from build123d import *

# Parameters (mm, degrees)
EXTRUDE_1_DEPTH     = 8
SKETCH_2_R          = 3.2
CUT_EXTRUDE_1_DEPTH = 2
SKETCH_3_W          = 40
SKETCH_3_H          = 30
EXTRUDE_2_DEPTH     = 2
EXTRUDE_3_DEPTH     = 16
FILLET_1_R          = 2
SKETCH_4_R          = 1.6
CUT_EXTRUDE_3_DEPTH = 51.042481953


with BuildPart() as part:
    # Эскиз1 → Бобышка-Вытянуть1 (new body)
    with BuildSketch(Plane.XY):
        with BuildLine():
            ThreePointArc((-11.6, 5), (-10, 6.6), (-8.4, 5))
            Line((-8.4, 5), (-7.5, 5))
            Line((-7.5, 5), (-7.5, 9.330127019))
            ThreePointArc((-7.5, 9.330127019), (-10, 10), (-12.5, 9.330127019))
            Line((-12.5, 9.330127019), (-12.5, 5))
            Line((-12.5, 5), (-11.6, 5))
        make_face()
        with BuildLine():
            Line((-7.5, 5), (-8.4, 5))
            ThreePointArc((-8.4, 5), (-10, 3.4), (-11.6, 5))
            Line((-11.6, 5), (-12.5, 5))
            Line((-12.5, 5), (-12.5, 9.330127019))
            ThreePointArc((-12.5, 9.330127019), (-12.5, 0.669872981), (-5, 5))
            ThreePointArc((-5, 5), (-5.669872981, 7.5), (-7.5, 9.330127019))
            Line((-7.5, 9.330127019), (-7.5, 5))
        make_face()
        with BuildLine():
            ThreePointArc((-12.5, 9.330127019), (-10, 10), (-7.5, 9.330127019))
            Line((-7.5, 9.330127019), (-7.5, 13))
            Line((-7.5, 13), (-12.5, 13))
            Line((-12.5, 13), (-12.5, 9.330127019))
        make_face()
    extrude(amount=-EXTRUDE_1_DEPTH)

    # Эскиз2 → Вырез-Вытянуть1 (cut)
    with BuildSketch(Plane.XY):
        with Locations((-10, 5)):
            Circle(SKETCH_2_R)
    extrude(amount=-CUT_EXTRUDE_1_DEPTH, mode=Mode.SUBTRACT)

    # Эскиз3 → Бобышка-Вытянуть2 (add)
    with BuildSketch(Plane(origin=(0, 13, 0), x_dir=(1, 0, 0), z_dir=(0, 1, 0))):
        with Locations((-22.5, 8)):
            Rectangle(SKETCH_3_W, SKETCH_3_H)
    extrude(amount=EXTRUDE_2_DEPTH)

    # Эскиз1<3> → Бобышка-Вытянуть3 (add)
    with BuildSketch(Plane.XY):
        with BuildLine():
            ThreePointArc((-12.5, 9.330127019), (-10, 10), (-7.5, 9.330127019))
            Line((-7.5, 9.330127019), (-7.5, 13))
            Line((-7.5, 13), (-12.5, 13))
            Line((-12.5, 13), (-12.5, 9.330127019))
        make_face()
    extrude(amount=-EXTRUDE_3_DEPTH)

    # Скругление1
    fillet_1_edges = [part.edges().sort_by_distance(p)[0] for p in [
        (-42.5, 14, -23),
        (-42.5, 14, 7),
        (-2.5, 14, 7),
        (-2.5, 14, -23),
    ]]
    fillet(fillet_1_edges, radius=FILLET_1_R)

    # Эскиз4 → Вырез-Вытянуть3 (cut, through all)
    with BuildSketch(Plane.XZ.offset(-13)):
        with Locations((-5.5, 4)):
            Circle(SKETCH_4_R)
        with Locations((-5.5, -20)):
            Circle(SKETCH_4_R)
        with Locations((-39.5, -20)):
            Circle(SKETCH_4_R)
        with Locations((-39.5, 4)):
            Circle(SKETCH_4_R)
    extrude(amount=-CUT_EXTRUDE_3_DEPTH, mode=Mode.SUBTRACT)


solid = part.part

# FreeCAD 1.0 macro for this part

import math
import FreeCAD as App
import Part
import Sketcher
from FreeCAD import Vector


def edges_at(feature, points):
    """Names of the edges that pass closest to the given points."""
    edges = feature.Shape.Edges
    near = lambda p: min(range(len(edges)), key=lambda i: edges[i].distToShape(Part.Vertex(*p))[0])
    return sorted({f"Edge{near(p) + 1}" for p in points})

doc = App.newDocument("Part")
body = doc.addObject("PartDesign::Body", "Body")

sketch1 = body.newObject("Sketcher::SketchObject", "Sketch")
sketch1.AttachmentSupport = (doc.getObject("XY_Plane"), [""])
sketch1.MapMode = "FlatFace"
sketch1.addGeometry(Part.ArcOfCircle(Part.Circle(Vector(-10, 5, 0), Vector(0, 0, 1), 5), math.radians(120), math.radians(360)), False)
sketch1.addGeometry(Part.ArcOfCircle(Part.Circle(Vector(-10, 5, 0), Vector(0, 0, 1), 5), math.radians(0), math.radians(60)), False)
sketch1.addGeometry(Part.LineSegment(Vector(-7.5, 9.3, 0), Vector(-7.5, 13, 0)), False)
sketch1.addGeometry(Part.LineSegment(Vector(-7.5, 13, 0), Vector(-12.5, 13, 0)), False)
sketch1.addGeometry(Part.LineSegment(Vector(-12.5, 13, 0), Vector(-12.5, 9.3, 0)), False)
sketch1.addGeometry(Part.Circle(Vector(-10, 5, 0), Vector(0, 0, 1), 1.6), False)
sketch1.addConstraint(Sketcher.Constraint("Tangent", 0, 2, 1, 1))
sketch1.addConstraint(Sketcher.Constraint("Coincident", 1, 2, 2, 1))
sketch1.addConstraint(Sketcher.Constraint("Coincident", 2, 2, 3, 1))
sketch1.addConstraint(Sketcher.Constraint("Coincident", 3, 2, 4, 1))
sketch1.addConstraint(Sketcher.Constraint("Coincident", 4, 2, 0, 1))
sketch1.addConstraint(Sketcher.Constraint("Vertical", 2))
sketch1.addConstraint(Sketcher.Constraint("Horizontal", 3))
sketch1.addConstraint(Sketcher.Constraint("Vertical", 4))
sketch1.addConstraint(Sketcher.Constraint("Coincident", 5, 3, 0, 3))
sketch1.addConstraint(Sketcher.Constraint("Equal", 0, 1))
sketch1.addConstraint(Sketcher.Constraint("Horizontal", 5, 3, 0, 2))
sketch1.addConstraint(Sketcher.Constraint("Horizontal", 1, 2, 4, 2))
sketch1.addConstraint(Sketcher.Constraint("Radius", 0, 5.0))
sketch1.addConstraint(Sketcher.Constraint("Diameter", 5, 3.2))
sketch1.addConstraint(Sketcher.Constraint("DistanceX", 3, 2, 3, 1, 5.0))
sketch1.addConstraint(Sketcher.Constraint("DistanceX", 0, 3, -1, 1, 10.0))
sketch1.addConstraint(Sketcher.Constraint("DistanceY", -1, 1, 0, 3, 5.0))
sketch1.addConstraint(Sketcher.Constraint("DistanceY", -1, 1, 2, 2, 13.0))
pad1 = body.newObject("PartDesign::Pad", "Pad")
pad1.Profile = sketch1
pad1.Length = 8
pad1.Reversed = True

sketch2 = body.newObject("Sketcher::SketchObject", "Sketch001")
sketch2.AttachmentSupport = (doc.getObject("XY_Plane"), [""])
sketch2.MapMode = "FlatFace"
sketch2.addGeometry(Part.Circle(Vector(-10, 5, 0), Vector(0, 0, 1), 3.2), False)
sketch2.addConstraint(Sketcher.Constraint("Diameter", 0, 6.4))
sketch2.addConstraint(Sketcher.Constraint("DistanceX", 0, 3, -1, 1, 10.0))
sketch2.addConstraint(Sketcher.Constraint("DistanceY", -1, 1, 0, 3, 5.0))
pocket1 = body.newObject("PartDesign::Pocket", "Pocket")
pocket1.Profile = sketch2
pocket1.Length = 2

sketch3 = body.newObject("Sketcher::SketchObject", "Sketch002")
sketch3.AttachmentSupport = (doc.getObject("XZ_Plane"), [""])
sketch3.MapMode = "FlatFace"
sketch3.AttachmentOffset = App.Placement(Vector(0, 0, -13), App.Rotation())
sketch3.addGeometry(Part.LineSegment(Vector(-42, -23, 0), Vector(-42, 7, 0)), False)
sketch3.addGeometry(Part.LineSegment(Vector(-42, 7, 0), Vector(-2, 7, 0)), False)
sketch3.addGeometry(Part.LineSegment(Vector(-2, 7, 0), Vector(-2, -23, 0)), False)
sketch3.addGeometry(Part.LineSegment(Vector(-2, -23, 0), Vector(-42, -23, 0)), False)
sketch3.addConstraint(Sketcher.Constraint("Coincident", 0, 2, 1, 1))
sketch3.addConstraint(Sketcher.Constraint("Coincident", 1, 2, 2, 1))
sketch3.addConstraint(Sketcher.Constraint("Coincident", 2, 2, 3, 1))
sketch3.addConstraint(Sketcher.Constraint("Coincident", 3, 2, 0, 1))
sketch3.addConstraint(Sketcher.Constraint("Vertical", 0))
sketch3.addConstraint(Sketcher.Constraint("Horizontal", 1))
sketch3.addConstraint(Sketcher.Constraint("Vertical", 2))
sketch3.addConstraint(Sketcher.Constraint("Horizontal", 3))
sketch3.addConstraint(Sketcher.Constraint("DistanceX", 1, 1, 1, 2, 40.0))
sketch3.addConstraint(Sketcher.Constraint("DistanceY", 0, 1, 0, 2, 30.0))
sketch3.addConstraint(Sketcher.Constraint("DistanceY", -1, 1, 0, 2, 7.0))
sketch3.addConstraint(Sketcher.Constraint("DistanceX", 0, 2, -1, 1, 42.5))
pad2 = body.newObject("PartDesign::Pad", "Pad001")
pad2.Profile = sketch3
pad2.Length = 2
pad2.Reversed = True

sketch4 = body.newObject("Sketcher::SketchObject", "Sketch003")
sketch4.AttachmentSupport = (doc.getObject("XY_Plane"), [""])
sketch4.MapMode = "FlatFace"
sketch4.addGeometry(Part.ArcOfCircle(Part.Circle(Vector(-10, 5, 0), Vector(0, 0, 1), 5), math.radians(60), math.radians(120)), False)
sketch4.addGeometry(Part.LineSegment(Vector(-7.5, 9.3, 0), Vector(-7.5, 13, 0)), False)
sketch4.addGeometry(Part.LineSegment(Vector(-7.5, 13, 0), Vector(-12.5, 13, 0)), False)
sketch4.addGeometry(Part.LineSegment(Vector(-12.5, 13, 0), Vector(-12.5, 9.3, 0)), False)
sketch4.addConstraint(Sketcher.Constraint("Coincident", 0, 1, 1, 1))
sketch4.addConstraint(Sketcher.Constraint("Coincident", 1, 2, 2, 1))
sketch4.addConstraint(Sketcher.Constraint("Coincident", 2, 2, 3, 1))
sketch4.addConstraint(Sketcher.Constraint("Coincident", 3, 2, 0, 2))
sketch4.addConstraint(Sketcher.Constraint("Vertical", 1))
sketch4.addConstraint(Sketcher.Constraint("Horizontal", 2))
sketch4.addConstraint(Sketcher.Constraint("Vertical", 3))
sketch4.addConstraint(Sketcher.Constraint("Horizontal", 0, 1, 3, 2))
sketch4.addConstraint(Sketcher.Constraint("Radius", 0, 5.0))
sketch4.addConstraint(Sketcher.Constraint("DistanceX", 2, 2, 2, 1, 5.0))
sketch4.addConstraint(Sketcher.Constraint("DistanceX", 0, 3, -1, 1, 10.0))
sketch4.addConstraint(Sketcher.Constraint("DistanceY", -1, 1, 0, 3, 5.0))
sketch4.addConstraint(Sketcher.Constraint("DistanceY", -1, 1, 1, 2, 13.0))
pad3 = body.newObject("PartDesign::Pad", "Pad002")
pad3.Profile = sketch4
pad3.Length = 16
pad3.Reversed = True
doc.recompute()

fillet = body.newObject("PartDesign::Fillet", "Fillet")
fillet.Base = (pad3, edges_at(pad3, [
    (-42.5, 14, -23),
    (-42.5, 14, 7),
    (-2.5, 14, 7),
    (-2.5, 14, -23),
]))
fillet.Radius = 2

sketch5 = body.newObject("Sketcher::SketchObject", "Sketch004")
sketch5.AttachmentSupport = (doc.getObject("XZ_Plane"), [""])
sketch5.MapMode = "FlatFace"
sketch5.AttachmentOffset = App.Placement(Vector(0, 0, -13), App.Rotation())
sketch5.addGeometry(Part.Circle(Vector(-5.5, 4, 0), Vector(0, 0, 1), 1.6), False)
sketch5.addGeometry(Part.Circle(Vector(-5.5, -20, 0), Vector(0, 0, 1), 1.6), False)
sketch5.addGeometry(Part.Circle(Vector(-39.5, -20, 0), Vector(0, 0, 1), 1.6), False)
sketch5.addGeometry(Part.Circle(Vector(-39.5, 4, 0), Vector(0, 0, 1), 1.6), False)
sketch5.addConstraint(Sketcher.Constraint("Equal", 0, 1))
sketch5.addConstraint(Sketcher.Constraint("Equal", 1, 2))
sketch5.addConstraint(Sketcher.Constraint("Equal", 2, 3))
sketch5.addConstraint(Sketcher.Constraint("Horizontal", 1, 3, 2, 3))
sketch5.addConstraint(Sketcher.Constraint("Horizontal", 0, 3, 3, 3))
sketch5.addConstraint(Sketcher.Constraint("Vertical", 0, 3, 1, 3))
sketch5.addConstraint(Sketcher.Constraint("Vertical", 2, 3, 3, 3))
sketch5.addConstraint(Sketcher.Constraint("Diameter", 0, 3.2))
sketch5.addConstraint(Sketcher.Constraint("DistanceY", -1, 1, 0, 3, 4.0))
sketch5.addConstraint(Sketcher.Constraint("DistanceY", 1, 3, -1, 1, 20.0))
sketch5.addConstraint(Sketcher.Constraint("DistanceX", 2, 3, 1, 3, 34.0))
sketch5.addConstraint(Sketcher.Constraint("DistanceX", 0, 3, -1, 1, 5.5))
pocket2 = body.newObject("PartDesign::Pocket", "Pocket001")
pocket2.Profile = sketch5
pocket2.Type = "ThroughAll"

doc.recompute()
